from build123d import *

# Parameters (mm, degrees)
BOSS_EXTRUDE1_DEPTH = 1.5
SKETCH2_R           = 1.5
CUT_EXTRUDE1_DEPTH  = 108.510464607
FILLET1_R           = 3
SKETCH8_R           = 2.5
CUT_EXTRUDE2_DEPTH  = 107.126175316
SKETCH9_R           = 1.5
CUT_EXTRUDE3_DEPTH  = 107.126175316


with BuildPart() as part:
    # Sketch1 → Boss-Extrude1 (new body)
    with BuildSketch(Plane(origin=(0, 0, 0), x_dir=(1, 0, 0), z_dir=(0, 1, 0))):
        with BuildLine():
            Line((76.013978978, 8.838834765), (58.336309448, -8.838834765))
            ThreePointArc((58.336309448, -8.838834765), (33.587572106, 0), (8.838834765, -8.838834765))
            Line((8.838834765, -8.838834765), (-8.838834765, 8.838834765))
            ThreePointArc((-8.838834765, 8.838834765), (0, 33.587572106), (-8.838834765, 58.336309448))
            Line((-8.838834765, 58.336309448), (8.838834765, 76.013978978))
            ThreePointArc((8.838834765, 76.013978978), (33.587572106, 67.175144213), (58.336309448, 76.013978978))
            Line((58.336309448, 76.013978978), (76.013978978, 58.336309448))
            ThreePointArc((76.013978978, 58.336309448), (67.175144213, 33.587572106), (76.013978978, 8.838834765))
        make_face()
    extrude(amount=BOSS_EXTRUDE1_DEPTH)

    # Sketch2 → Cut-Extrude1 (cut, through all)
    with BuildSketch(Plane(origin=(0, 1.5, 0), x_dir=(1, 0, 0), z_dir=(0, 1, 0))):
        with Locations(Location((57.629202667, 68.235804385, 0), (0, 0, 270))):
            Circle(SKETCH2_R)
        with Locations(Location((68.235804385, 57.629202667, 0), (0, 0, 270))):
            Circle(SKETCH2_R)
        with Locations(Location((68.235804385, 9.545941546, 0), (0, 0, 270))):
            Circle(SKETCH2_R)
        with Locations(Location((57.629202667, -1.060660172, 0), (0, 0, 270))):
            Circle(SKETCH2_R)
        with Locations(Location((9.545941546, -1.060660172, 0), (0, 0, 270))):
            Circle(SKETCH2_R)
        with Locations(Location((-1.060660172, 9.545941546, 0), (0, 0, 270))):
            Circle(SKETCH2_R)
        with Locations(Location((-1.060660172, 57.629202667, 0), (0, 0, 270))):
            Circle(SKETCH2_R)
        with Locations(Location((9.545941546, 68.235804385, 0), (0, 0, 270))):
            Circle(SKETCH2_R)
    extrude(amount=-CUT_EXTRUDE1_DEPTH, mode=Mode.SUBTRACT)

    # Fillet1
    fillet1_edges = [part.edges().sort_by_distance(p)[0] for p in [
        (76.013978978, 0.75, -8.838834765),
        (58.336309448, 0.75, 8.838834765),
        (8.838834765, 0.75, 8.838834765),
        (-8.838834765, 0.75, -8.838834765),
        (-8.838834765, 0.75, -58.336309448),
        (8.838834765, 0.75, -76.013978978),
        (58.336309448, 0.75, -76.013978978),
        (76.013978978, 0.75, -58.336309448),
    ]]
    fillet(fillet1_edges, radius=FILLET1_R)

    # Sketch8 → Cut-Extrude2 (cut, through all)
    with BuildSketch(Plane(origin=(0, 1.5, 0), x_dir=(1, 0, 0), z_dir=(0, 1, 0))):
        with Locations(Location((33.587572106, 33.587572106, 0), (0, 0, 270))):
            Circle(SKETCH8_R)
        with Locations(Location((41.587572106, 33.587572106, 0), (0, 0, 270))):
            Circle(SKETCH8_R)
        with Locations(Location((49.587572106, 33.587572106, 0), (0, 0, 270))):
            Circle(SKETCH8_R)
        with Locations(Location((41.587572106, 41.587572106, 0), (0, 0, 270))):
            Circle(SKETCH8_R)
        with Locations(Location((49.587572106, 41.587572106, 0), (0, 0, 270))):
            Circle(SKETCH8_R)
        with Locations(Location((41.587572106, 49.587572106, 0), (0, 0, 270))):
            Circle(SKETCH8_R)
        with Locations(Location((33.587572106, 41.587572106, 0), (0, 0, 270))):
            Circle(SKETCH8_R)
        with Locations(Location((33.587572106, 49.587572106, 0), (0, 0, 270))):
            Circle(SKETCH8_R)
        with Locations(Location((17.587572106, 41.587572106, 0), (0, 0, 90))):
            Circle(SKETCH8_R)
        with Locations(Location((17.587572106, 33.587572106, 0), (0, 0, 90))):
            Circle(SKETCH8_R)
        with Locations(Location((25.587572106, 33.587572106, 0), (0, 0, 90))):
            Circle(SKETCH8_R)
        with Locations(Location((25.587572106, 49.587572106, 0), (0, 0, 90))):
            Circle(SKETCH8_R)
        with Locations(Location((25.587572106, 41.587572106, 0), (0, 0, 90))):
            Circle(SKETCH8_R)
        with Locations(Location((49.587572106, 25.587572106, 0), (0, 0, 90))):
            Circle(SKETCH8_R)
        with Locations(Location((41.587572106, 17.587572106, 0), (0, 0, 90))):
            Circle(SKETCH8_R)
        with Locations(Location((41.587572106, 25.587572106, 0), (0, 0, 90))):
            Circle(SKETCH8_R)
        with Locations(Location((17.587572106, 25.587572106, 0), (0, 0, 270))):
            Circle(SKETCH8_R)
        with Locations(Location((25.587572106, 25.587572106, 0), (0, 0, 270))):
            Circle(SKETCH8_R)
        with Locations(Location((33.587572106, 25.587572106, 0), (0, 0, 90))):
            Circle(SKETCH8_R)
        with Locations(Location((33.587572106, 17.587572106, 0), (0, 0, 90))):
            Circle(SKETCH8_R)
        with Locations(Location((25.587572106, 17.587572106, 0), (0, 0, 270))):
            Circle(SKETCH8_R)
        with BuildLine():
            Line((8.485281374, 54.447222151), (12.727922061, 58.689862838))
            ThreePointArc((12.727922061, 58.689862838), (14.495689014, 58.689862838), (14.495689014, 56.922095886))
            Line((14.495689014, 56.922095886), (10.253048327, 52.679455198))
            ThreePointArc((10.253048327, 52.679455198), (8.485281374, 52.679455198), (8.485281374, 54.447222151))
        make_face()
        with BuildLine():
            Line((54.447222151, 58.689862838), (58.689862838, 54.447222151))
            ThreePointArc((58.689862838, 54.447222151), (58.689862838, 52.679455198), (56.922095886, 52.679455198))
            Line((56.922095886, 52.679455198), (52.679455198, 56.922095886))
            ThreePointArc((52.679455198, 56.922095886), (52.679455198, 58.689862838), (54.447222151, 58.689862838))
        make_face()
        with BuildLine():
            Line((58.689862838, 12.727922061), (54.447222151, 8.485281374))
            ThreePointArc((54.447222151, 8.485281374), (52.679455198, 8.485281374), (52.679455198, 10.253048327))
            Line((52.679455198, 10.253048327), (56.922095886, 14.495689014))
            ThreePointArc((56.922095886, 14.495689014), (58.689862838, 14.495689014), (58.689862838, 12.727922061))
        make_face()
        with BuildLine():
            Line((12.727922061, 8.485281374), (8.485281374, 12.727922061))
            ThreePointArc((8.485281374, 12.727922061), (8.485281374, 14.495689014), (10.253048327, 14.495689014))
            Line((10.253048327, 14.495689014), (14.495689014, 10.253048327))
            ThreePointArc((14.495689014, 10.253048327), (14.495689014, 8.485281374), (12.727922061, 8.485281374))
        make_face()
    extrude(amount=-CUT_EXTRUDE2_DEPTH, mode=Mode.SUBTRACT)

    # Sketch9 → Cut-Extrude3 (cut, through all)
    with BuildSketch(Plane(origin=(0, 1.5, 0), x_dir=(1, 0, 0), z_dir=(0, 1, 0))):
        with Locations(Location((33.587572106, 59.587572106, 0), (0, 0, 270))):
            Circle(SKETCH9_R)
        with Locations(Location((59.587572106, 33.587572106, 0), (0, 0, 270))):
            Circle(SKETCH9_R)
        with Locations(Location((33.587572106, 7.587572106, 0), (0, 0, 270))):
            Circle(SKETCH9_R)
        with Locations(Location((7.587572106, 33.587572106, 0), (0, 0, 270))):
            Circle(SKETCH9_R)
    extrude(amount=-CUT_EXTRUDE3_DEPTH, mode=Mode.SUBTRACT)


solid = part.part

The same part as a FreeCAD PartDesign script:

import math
import FreeCAD as App
import Part
import Sketcher

V = App.Vector
Q = App.Units.Quantity


def edges_at(feature, points):
    """Names of the edges that pass closest to the given points."""
    edges = feature.Shape.Edges
    near = lambda p: min(range(len(edges)), key=lambda i: edges[i].distToShape(Part.Vertex(*p))[0])
    return sorted({f"Edge{near(p) + 1}" for p in points})

doc = App.newDocument("Part")
body = doc.addObject("PartDesign::Body", "Body")

# Sketch on XZ plane
sketch1 = body.newObject("Sketcher::SketchObject", "Sketch")
sketch1.AttachmentSupport = (doc.getObject("XZ_Plane"), [""])
sketch1.MapMode = "FlatFace"
sketch1.addGeometry([
    Part.LineSegment(V(58, 9, 0), V(76, -9, 0)),  # 0
    Part.ArcOfCircle(Part.Circle(V(106, -34, 0), V(0, 0, 1), 39), math.radians(141), math.radians(219)),  # 1
    Part.LineSegment(V(76, -58, 0), V(58, -76, 0)),  # 2
    Part.ArcOfCircle(Part.Circle(V(34, -106, 0), V(0, 0, 1), 39), math.radians(51), math.radians(129)),  # 3
    Part.LineSegment(V(9, -76, 0), V(-9, -58, 0)),  # 4
    Part.ArcOfCircle(Part.Circle(V(-39, -34, 0), V(0, 0, 1), 39), math.radians(-39), math.radians(39)),  # 5
    Part.LineSegment(V(-9, -9, 0), V(9, 9, 0)),  # 6
    Part.ArcOfCircle(Part.Circle(V(34, 39, 0), V(0, 0, 1), 39), math.radians(-129), math.radians(-51)),  # 7
], False)
sketch1.addConstraint([
    Sketcher.Constraint("Coincident", 0, 2, 1, 1),
    Sketcher.Constraint("Coincident", 1, 2, 2, 1),
    Sketcher.Constraint("Coincident", 2, 2, 3, 1),
    Sketcher.Constraint("Coincident", 3, 2, 4, 1),
    Sketcher.Constraint("Coincident", 4, 2, 5, 1),
    Sketcher.Constraint("Coincident", 5, 2, 6, 1),
    Sketcher.Constraint("Coincident", 6, 2, 7, 1),
    Sketcher.Constraint("Coincident", 7, 2, 0, 1),
    Sketcher.Constraint("Equal", 1, 3),
    Sketcher.Constraint("Equal", 3, 5),
    Sketcher.Constraint("Equal", 5, 7),
    Sketcher.Constraint("Symmetric", 5, 2, 6, 2, -1, 1),
    Sketcher.Constraint("Perpendicular", 0, 2),
    Sketcher.Constraint("Perpendicular", 2, 4),
    Sketcher.Constraint("Perpendicular", 4, 6),
    Sketcher.Constraint("Horizontal", 1, 3, 5, 3),
    Sketcher.Constraint("Horizontal", 2, 2, 3, 2),
    Sketcher.Constraint("Horizontal", 1, 2, 4, 2),
    Sketcher.Constraint("Horizontal", 0, 2, 5, 2),
    Sketcher.Constraint("Horizontal", 6, 2, 7, 2),
    Sketcher.Constraint("Vertical", 3, 3, 7, 3),
    Sketcher.Constraint("Vertical", 0, 2, 1, 2),
    Sketcher.Constraint("Vertical", 3, 2, 6, 2),
    Sketcher.Constraint("Distance", 0, Q("25 mm")),
    Sketcher.Constraint("Radius", 1, Q("39.06765 mm")),
    Sketcher.Constraint("DistanceX", 5, 3, -1, 1, Q("39.06765 mm")),
    Sketcher.Constraint("DistanceY", -1, 1, 7, 3, Q("39.06765 mm")),
])
pad1 = body.newObject("PartDesign::Pad", "Pad")
pad1.Profile = sketch1
pad1.Length = 1.5
pad1.Reversed = True

# Sketch on XZ plane
sketch2 = body.newObject("Sketcher::SketchObject", "Sketch001")
sketch2.AttachmentSupport = (doc.getObject("XZ_Plane"), [""])
sketch2.MapMode = "FlatFace"
sketch2.AttachmentOffset = App.Placement(V(0, 0, -1.5), App.Rotation())
sketch2.addGeometry([
    Part.Circle(V(57.6, -68.2, 0), V(0, 0, 1), 1.5),  # 0
    Part.Circle(V(68.2, -57.6, 0), V(0, 0, 1), 1.5),  # 1
    Part.Circle(V(68.2, -9.5, 0), V(0, 0, 1), 1.5),  # 2
    Part.Circle(V(57.6, 1.1, 0), V(0, 0, 1), 1.5),  # 3
    Part.Circle(V(9.5, 1.1, 0), V(0, 0, 1), 1.5),  # 4
    Part.Circle(V(-1.1, -9.5, 0), V(0, 0, 1), 1.5),  # 5
    Part.Circle(V(-1.1, -57.6, 0), V(0, 0, 1), 1.5),  # 6
    Part.Circle(V(9.5, -68.2, 0), V(0, 0, 1), 1.5),  # 7
], False)
sketch2.addConstraint([
    Sketcher.Constraint("Equal", 0, 1),
    Sketcher.Constraint("Equal", 1, 2),
    Sketcher.Constraint("Equal", 2, 3),
    Sketcher.Constraint("Equal", 3, 4),
    Sketcher.Constraint("Equal", 4, 5),
    Sketcher.Constraint("Equal", 5, 6),
    Sketcher.Constraint("Equal", 6, 7),
    Sketcher.Constraint("Horizontal", 3, 3, 4, 3),
    Sketcher.Constraint("Horizontal", 2, 3, 5, 3),
    Sketcher.Constraint("Horizontal", 1, 3, 6, 3),
    Sketcher.Constraint("Horizontal", 0, 3, 7, 3),
    Sketcher.Constraint("Vertical", 1, 3, 2, 3),
    Sketcher.Constraint("Vertical", 0, 3, 3, 3),
    Sketcher.Constraint("Vertical", 5, 3, 6, 3),
    Sketcher.Constraint("Vertical", 4, 3, 7, 3),
    Sketcher.Constraint("Diameter", 0, Q("3 mm")),
    Sketcher.Constraint("DistanceX", 0, 3, 1, 3, Q("10.606602 mm")),
    Sketcher.Constraint("DistanceY", 0, 3, 1, 3, Q("10.606602 mm")),
    Sketcher.Constraint("DistanceY", 2, 3, 3, 3, Q("10.606602 mm")),
    Sketcher.Constraint("DistanceX", 5, 3, 4, 3, Q("10.606602 mm")),
    Sketcher.Constraint("DistanceY", 2, 3, -1, 1, Q("9.545942 mm")),
    Sketcher.Constraint("DistanceX", -1, 1, 4, 3, Q("9.545942 mm")),
    Sketcher.Constraint("DistanceY", 1, 3, 2, 3, Q("48.083261 mm")),
    Sketcher.Constraint("DistanceX", 4, 3, 3, 3, Q("48.083261 mm")),
])
pocket1 = body.newObject("PartDesign::Pocket", "Pocket")
pocket1.Profile = sketch2
pocket1.Type = "ThroughAll"
pocket1.Reversed = True
doc.recompute()

fillet = body.newObject("PartDesign::Fillet", "Fillet")
fillet.Base = (pocket1, edges_at(pocket1, [
    (76.014, 0.75, -8.839),
    (58.336, 0.75, 8.839),
    (8.839, 0.75, 8.839),
    (-8.839, 0.75, -8.839),
    (-8.839, 0.75, -58.336),
    (8.839, 0.75, -76.014),
    (58.336, 0.75, -76.014),
    (76.014, 0.75, -58.336),
]))
fillet.Radius = 3

# Sketch on XZ plane
sketch3 = body.newObject("Sketcher::SketchObject", "Sketch002")
sketch3.AttachmentSupport = (doc.getObject("XZ_Plane"), [""])
sketch3.MapMode = "FlatFace"
sketch3.AttachmentOffset = App.Placement(V(0, 0, -1.5), App.Rotation())
sketch3.addGeometry([
    Part.Circle(V(33.6, -33.6, 0), V(0, 0, 1), 2.5),  # 0
    Part.Circle(V(41.6, -33.6, 0), V(0, 0, 1), 2.5),  # 1
    Part.Circle(V(49.6, -33.6, 0), V(0, 0, 1), 2.5),  # 2
    Part.Circle(V(41.6, -41.6, 0), V(0, 0, 1), 2.5),  # 3
    Part.Circle(V(49.6, -41.6, 0), V(0, 0, 1), 2.5),  # 4
    Part.Circle(V(41.6, -49.6, 0), V(0, 0, 1), 2.5),  # 5
    Part.Circle(V(33.6, -41.6, 0), V(0, 0, 1), 2.5),  # 6
    Part.Circle(V(33.6, -49.6, 0), V(0, 0, 1), 2.5),  # 7
    Part.Circle(V(17.6, -41.6, 0), V(0, 0, 1), 2.5),  # 8
    Part.Circle(V(17.6, -33.6, 0), V(0, 0, 1), 2.5),  # 9
    Part.Circle(V(25.6, -33.6, 0), V(0, 0, 1), 2.5),  # 10
    Part.Circle(V(25.6, -49.6, 0), V(0, 0, 1), 2.5),  # 11
    Part.Circle(V(25.6, -41.6, 0), V(0, 0, 1), 2.5),  # 12
    Part.Circle(V(49.6, -25.6, 0), V(0, 0, 1), 2.5),  # 13
    Part.Circle(V(41.6, -17.6, 0), V(0, 0, 1), 2.5),  # 14
    Part.Circle(V(41.6, -25.6, 0), V(0, 0, 1), 2.5),  # 15
    Part.Circle(V(17.6, -25.6, 0), V(0, 0, 1), 2.5),  # 16
    Part.Circle(V(25.6, -25.6, 0), V(0, 0, 1), 2.5),  # 17
    Part.Circle(V(33.6, -25.6, 0), V(0, 0, 1), 2.5),  # 18
    Part.Circle(V(33.6, -17.6, 0), V(0, 0, 1), 2.5),  # 19
    Part.Circle(V(25.6, -17.6, 0), V(0, 0, 1), 2.5),  # 20
    Part.LineSegment(V(12.7, -58.7, 0), V(8.5, -54.4, 0)),  # 21
    Part.ArcOfCircle(Part.Circle(V(9.4, -53.6, 0), V(0, 0, 1), 1.2), math.radians(45), math.radians(225)),  # 22
    Part.LineSegment(V(10.3, -52.7, 0), V(14.5, -56.9, 0)),  # 23
    Part.ArcOfCircle(Part.Circle(V(13.6, -57.8, 0), V(0, 0, 1), 1.2), math.radians(-135), math.radians(45)),  # 24
    Part.LineSegment(V(58.7, -54.4, 0), V(54.4, -58.7, 0)),  # 25
    Part.ArcOfCircle(Part.Circle(V(53.6, -57.8, 0), V(0, 0, 1), 1.2), math.radians(135), math.radians(315)),  # 26
    Part.LineSegment(V(52.7, -56.9, 0), V(56.9, -52.7, 0)),  # 27
    Part.ArcOfCircle(Part.Circle(V(57.8, -53.6, 0), V(0, 0, 1), 1.2), math.radians(-45), math.radians(135)),  # 28
    Part.LineSegment(V(54.4, -8.5, 0), V(58.7, -12.7, 0)),  # 29
    Part.ArcOfCircle(Part.Circle(V(57.8, -13.6, 0), V(0, 0, 1), 1.2), math.radians(-135), math.radians(45)),  # 30
    Part.LineSegment(V(56.9, -14.5, 0), V(52.7, -10.3, 0)),  # 31
    Part.ArcOfCircle(Part.Circle(V(53.6, -9.4, 0), V(0, 0, 1), 1.2), math.radians(45), math.radians(225)),  # 32
    Part.LineSegment(V(8.5, -12.7, 0), V(12.7, -8.5, 0)),  # 33
    Part.ArcOfCircle(Part.Circle(V(13.6, -9.4, 0), V(0, 0, 1), 1.2), math.radians(-45), math.radians(135)),  # 34
    Part.LineSegment(V(14.5, -10.3, 0), V(10.3, -14.5, 0)),  # 35
    Part.ArcOfCircle(Part.Circle(V(9.4, -13.6, 0), V(0, 0, 1), 1.2), math.radians(135), math.radians(315)),  # 36
], False)
sketch3.addConstraint([
    Sketcher.Constraint("Tangent", 21, 2, 22, 2),
    Sketcher.Constraint("Tangent", 22, 1, 23, 1),
    Sketcher.Constraint("Tangent", 23, 2, 24, 2),
    Sketcher.Constraint("Tangent", 24, 1, 21, 1),
    Sketcher.Constraint("Tangent", 25, 2, 26, 2),
    Sketcher.Constraint("Tangent", 26, 1, 27, 1),
    Sketcher.Constraint("Tangent", 27, 2, 28, 2),
    Sketcher.Constraint("Tangent", 28, 1, 25, 1),
    Sketcher.Constraint("Tangent", 29, 2, 30, 2),
    Sketcher.Constraint("Tangent", 30, 1, 31, 1),
    Sketcher.Constraint("Tangent", 31, 2, 32, 2),
    Sketcher.Constraint("Tangent", 32, 1, 29, 1),
    Sketcher.Constraint("Tangent", 33, 2, 34, 2),
    Sketcher.Constraint("Tangent", 34, 1, 35, 1),
    Sketcher.Constraint("Tangent", 35, 2, 36, 2),
    Sketcher.Constraint("Tangent", 36, 1, 33, 1),
    Sketcher.Constraint("Equal", 0, 1),
    Sketcher.Constraint("Equal", 1, 2),
    Sketcher.Constraint("Equal", 2, 3),
    Sketcher.Constraint("Equal", 3, 4),
    Sketcher.Constraint("Equal", 4, 5),
    Sketcher.Constraint("Equal", 5, 6),
    Sketcher.Constraint("Equal", 6, 7),
    Sketcher.Constraint("Equal", 7, 8),
    Sketcher.Constraint("Equal", 8, 9),
    Sketcher.Constraint("Equal", 9, 10),
    Sketcher.Constraint("Equal", 10, 11),
    Sketcher.Constraint("Equal", 11, 12),
    Sketcher.Constraint("Equal", 12, 13),
    Sketcher.Constraint("Equal", 13, 14),
    Sketcher.Constraint("Equal", 14, 15),
    Sketcher.Constraint("Equal", 15, 16),
    Sketcher.Constraint("Equal", 16, 17),
    Sketcher.Constraint("Equal", 17, 18),
    Sketcher.Constraint("Equal", 18, 19),
    Sketcher.Constraint("Equal", 19, 20),
    Sketcher.Constraint("Equal", 22, 24),
    Sketcher.Constraint("Equal", 24, 26),
    Sketcher.Constraint("Equal", 26, 28),
    Sketcher.Constraint("Equal", 28, 30),
    Sketcher.Constraint("Equal", 30, 32),
    Sketcher.Constraint("Equal", 32, 34),
    Sketcher.Constraint("Equal", 34, 36),
    Sketcher.Constraint("Perpendicular", 23, 25),
    Sketcher.Constraint("Perpendicular", 27, 29),
    Sketcher.Constraint("Perpendicular", 31, 33),
    Sketcher.Constraint("Horizontal", 0, 3, 1, 3),
    Sketcher.Constraint("Horizontal", 1, 3, 2, 3),
    Sketcher.Constraint("Horizontal", 3, 3, 4, 3),
    Sketcher.Constraint("Horizontal", 4, 3, 6, 3),
    Sketcher.Constraint("Horizontal", 5, 3, 7, 3),
    Sketcher.Constraint("Horizontal", 6, 3, 8, 3),
    Sketcher.Constraint("Horizontal", 2, 3, 9, 3),
    Sketcher.Constraint("Horizontal", 9, 3, 10, 3),
    Sketcher.Constraint("Horizontal", 7, 3, 11, 3),
    Sketcher.Constraint("Horizontal", 8, 3, 12, 3),
    Sketcher.Constraint("Horizontal", 13, 3, 15, 3),
    Sketcher.Constraint("Horizontal", 15, 3, 16, 3),
    Sketcher.Constraint("Horizontal", 16, 3, 17, 3),
    Sketcher.Constraint("Horizontal", 17, 3, 18, 3),
    Sketcher.Constraint("Horizontal", 14, 3, 19, 3),
    Sketcher.Constraint("Horizontal", 19, 3, 20, 3),
    Sketcher.Constraint("Horizontal", 24, 3, 26, 3),
    Sketcher.Constraint("Horizontal", 22, 3, 28, 3),
    Sketcher.Constraint("Horizontal", 32, 3, 34, 3),
    Sketcher.Constraint("Horizontal", 30, 3, 36, 3),
    Sketcher.Constraint("Horizontal", 24, 1, 25, 2),
    Sketcher.Constraint("Vertical", 1, 3, 3, 3),
    Sketcher.Constraint("Vertical", 2, 3, 4, 3),
    Sketcher.Constraint("Vertical", 3, 3, 5, 3),
    Sketcher.Constraint("Vertical", 0, 3, 6, 3),
    Sketcher.Constraint("Vertical", 6, 3, 7, 3),
    Sketcher.Constraint("Vertical", 8, 3, 9, 3),
    Sketcher.Constraint("Vertical", 10, 3, 11, 3),
    Sketcher.Constraint("Vertical", 11, 3, 12, 3),
    Sketcher.Constraint("Vertical", 4, 3, 13, 3),
    Sketcher.Constraint("Vertical", 5, 3, 14, 3),
    Sketcher.Constraint("Vertical", 14, 3, 15, 3),
    Sketcher.Constraint("Vertical", 9, 3, 16, 3),
    Sketcher.Constraint("Vertical", 12, 3, 17, 3),
    Sketcher.Constraint("Vertical", 7, 3, 18, 3),
    Sketcher.Constraint("Vertical", 18, 3, 19, 3),
    Sketcher.Constraint("Vertical", 17, 3, 20, 3),
    Sketcher.Constraint("Vertical", 28, 3, 30, 3),
    Sketcher.Constraint("Vertical", 26, 3, 32, 3),
    Sketcher.Constraint("Vertical", 24, 3, 34, 3),
    Sketcher.Constraint("Diameter", 0, Q("5 mm")),
    Sketcher.Constraint("Radius", 22, Q("1.25 mm")),
    Sketcher.Constraint("Distance", 21, Q("6 mm")),
    Sketcher.Constraint("DistanceX", 0, 3, 1, 3, Q("8 mm")),
    Sketcher.Constraint("DistanceX", 1, 3, 2, 3, Q("8 mm")),
    Sketcher.Constraint("DistanceY", 3, 3, 1, 3, Q("8 mm")),
    Sketcher.Constraint("DistanceY", 5, 3, 3, 3, Q("8 mm")),
    Sketcher.Constraint("DistanceX", 8, 3, 6, 3, Q("16 mm")),
    Sketcher.Constraint("DistanceX", 9, 3, 10, 3, Q("8 mm")),
    Sketcher.Constraint("DistanceY", 2, 3, 13, 3, Q("8 mm")),
    Sketcher.Constraint("DistanceY", 13, 3, 14, 3, Q("8 mm")),
    Sketcher.Constraint("DistanceY", 22, 3, -1, 1, Q("53.563339 mm")),
    Sketcher.Constraint("DistanceX", -1, 1, 26, 3, Q("53.563339 mm")),
    Sketcher.Constraint("DistanceX", -1, 1, 21, 2, Q("8.485281 mm")),
    Sketcher.Constraint("DistanceY", 30, 1, -1, 1, Q("14.495689 mm")),
    Sketcher.Constraint("DistanceX", 21, 2, 8, 3, Q("9.102291 mm")),
    Sketcher.Constraint("DistanceY", 21, 2, 8, 3, Q("12.85965 mm")),
])
pocket2 = body.newObject("PartDesign::Pocket", "Pocket001")
pocket2.Profile = sketch3
pocket2.Type = "ThroughAll"
pocket2.Reversed = True

# Sketch on XZ plane
sketch4 = body.newObject("Sketcher::SketchObject", "Sketch003")
sketch4.AttachmentSupport = (doc.getObject("XZ_Plane"), [""])
sketch4.MapMode = "FlatFace"
sketch4.AttachmentOffset = App.Placement(V(0, 0, -1.5), App.Rotation())
sketch4.addGeometry([
    Part.Circle(V(33.6, -59.6, 0), V(0, 0, 1), 1.5),
    Part.Circle(V(59.6, -33.6, 0), V(0, 0, 1), 1.5),
    Part.Circle(V(33.6, -7.6, 0), V(0, 0, 1), 1.5),
    Part.Circle(V(7.6, -33.6, 0), V(0, 0, 1), 1.5),
], False)
sketch4.addConstraint([
    Sketcher.Constraint("Equal", 0, 1),
    Sketcher.Constraint("Equal", 1, 2),
    Sketcher.Constraint("Equal", 2, 3),
    Sketcher.Constraint("Horizontal", 1, 3, 3, 3),
    Sketcher.Constraint("Vertical", 0, 3, 2, 3),
    Sketcher.Constraint("Diameter", 0, Q("3 mm")),
    Sketcher.Constraint("DistanceX", 0, 3, 1, 3, Q("26 mm")),
    Sketcher.Constraint("DistanceY", 0, 3, 1, 3, Q("26 mm")),
    Sketcher.Constraint("DistanceY", 1, 3, 2, 3, Q("26 mm")),
    Sketcher.Constraint("DistanceX", 3, 3, 0, 3, Q("26 mm")),
    Sketcher.Constraint("DistanceX", -1, 1, 0, 3, Q("33.587572 mm")),
    Sketcher.Constraint("DistanceY", 0, 3, -1, 1, Q("59.587572 mm")),
])
pocket3 = body.newObject("PartDesign::Pocket", "Pocket002")
pocket3.Profile = sketch4
pocket3.Type = "ThroughAll"
pocket3.Reversed = True

doc.recompute()
